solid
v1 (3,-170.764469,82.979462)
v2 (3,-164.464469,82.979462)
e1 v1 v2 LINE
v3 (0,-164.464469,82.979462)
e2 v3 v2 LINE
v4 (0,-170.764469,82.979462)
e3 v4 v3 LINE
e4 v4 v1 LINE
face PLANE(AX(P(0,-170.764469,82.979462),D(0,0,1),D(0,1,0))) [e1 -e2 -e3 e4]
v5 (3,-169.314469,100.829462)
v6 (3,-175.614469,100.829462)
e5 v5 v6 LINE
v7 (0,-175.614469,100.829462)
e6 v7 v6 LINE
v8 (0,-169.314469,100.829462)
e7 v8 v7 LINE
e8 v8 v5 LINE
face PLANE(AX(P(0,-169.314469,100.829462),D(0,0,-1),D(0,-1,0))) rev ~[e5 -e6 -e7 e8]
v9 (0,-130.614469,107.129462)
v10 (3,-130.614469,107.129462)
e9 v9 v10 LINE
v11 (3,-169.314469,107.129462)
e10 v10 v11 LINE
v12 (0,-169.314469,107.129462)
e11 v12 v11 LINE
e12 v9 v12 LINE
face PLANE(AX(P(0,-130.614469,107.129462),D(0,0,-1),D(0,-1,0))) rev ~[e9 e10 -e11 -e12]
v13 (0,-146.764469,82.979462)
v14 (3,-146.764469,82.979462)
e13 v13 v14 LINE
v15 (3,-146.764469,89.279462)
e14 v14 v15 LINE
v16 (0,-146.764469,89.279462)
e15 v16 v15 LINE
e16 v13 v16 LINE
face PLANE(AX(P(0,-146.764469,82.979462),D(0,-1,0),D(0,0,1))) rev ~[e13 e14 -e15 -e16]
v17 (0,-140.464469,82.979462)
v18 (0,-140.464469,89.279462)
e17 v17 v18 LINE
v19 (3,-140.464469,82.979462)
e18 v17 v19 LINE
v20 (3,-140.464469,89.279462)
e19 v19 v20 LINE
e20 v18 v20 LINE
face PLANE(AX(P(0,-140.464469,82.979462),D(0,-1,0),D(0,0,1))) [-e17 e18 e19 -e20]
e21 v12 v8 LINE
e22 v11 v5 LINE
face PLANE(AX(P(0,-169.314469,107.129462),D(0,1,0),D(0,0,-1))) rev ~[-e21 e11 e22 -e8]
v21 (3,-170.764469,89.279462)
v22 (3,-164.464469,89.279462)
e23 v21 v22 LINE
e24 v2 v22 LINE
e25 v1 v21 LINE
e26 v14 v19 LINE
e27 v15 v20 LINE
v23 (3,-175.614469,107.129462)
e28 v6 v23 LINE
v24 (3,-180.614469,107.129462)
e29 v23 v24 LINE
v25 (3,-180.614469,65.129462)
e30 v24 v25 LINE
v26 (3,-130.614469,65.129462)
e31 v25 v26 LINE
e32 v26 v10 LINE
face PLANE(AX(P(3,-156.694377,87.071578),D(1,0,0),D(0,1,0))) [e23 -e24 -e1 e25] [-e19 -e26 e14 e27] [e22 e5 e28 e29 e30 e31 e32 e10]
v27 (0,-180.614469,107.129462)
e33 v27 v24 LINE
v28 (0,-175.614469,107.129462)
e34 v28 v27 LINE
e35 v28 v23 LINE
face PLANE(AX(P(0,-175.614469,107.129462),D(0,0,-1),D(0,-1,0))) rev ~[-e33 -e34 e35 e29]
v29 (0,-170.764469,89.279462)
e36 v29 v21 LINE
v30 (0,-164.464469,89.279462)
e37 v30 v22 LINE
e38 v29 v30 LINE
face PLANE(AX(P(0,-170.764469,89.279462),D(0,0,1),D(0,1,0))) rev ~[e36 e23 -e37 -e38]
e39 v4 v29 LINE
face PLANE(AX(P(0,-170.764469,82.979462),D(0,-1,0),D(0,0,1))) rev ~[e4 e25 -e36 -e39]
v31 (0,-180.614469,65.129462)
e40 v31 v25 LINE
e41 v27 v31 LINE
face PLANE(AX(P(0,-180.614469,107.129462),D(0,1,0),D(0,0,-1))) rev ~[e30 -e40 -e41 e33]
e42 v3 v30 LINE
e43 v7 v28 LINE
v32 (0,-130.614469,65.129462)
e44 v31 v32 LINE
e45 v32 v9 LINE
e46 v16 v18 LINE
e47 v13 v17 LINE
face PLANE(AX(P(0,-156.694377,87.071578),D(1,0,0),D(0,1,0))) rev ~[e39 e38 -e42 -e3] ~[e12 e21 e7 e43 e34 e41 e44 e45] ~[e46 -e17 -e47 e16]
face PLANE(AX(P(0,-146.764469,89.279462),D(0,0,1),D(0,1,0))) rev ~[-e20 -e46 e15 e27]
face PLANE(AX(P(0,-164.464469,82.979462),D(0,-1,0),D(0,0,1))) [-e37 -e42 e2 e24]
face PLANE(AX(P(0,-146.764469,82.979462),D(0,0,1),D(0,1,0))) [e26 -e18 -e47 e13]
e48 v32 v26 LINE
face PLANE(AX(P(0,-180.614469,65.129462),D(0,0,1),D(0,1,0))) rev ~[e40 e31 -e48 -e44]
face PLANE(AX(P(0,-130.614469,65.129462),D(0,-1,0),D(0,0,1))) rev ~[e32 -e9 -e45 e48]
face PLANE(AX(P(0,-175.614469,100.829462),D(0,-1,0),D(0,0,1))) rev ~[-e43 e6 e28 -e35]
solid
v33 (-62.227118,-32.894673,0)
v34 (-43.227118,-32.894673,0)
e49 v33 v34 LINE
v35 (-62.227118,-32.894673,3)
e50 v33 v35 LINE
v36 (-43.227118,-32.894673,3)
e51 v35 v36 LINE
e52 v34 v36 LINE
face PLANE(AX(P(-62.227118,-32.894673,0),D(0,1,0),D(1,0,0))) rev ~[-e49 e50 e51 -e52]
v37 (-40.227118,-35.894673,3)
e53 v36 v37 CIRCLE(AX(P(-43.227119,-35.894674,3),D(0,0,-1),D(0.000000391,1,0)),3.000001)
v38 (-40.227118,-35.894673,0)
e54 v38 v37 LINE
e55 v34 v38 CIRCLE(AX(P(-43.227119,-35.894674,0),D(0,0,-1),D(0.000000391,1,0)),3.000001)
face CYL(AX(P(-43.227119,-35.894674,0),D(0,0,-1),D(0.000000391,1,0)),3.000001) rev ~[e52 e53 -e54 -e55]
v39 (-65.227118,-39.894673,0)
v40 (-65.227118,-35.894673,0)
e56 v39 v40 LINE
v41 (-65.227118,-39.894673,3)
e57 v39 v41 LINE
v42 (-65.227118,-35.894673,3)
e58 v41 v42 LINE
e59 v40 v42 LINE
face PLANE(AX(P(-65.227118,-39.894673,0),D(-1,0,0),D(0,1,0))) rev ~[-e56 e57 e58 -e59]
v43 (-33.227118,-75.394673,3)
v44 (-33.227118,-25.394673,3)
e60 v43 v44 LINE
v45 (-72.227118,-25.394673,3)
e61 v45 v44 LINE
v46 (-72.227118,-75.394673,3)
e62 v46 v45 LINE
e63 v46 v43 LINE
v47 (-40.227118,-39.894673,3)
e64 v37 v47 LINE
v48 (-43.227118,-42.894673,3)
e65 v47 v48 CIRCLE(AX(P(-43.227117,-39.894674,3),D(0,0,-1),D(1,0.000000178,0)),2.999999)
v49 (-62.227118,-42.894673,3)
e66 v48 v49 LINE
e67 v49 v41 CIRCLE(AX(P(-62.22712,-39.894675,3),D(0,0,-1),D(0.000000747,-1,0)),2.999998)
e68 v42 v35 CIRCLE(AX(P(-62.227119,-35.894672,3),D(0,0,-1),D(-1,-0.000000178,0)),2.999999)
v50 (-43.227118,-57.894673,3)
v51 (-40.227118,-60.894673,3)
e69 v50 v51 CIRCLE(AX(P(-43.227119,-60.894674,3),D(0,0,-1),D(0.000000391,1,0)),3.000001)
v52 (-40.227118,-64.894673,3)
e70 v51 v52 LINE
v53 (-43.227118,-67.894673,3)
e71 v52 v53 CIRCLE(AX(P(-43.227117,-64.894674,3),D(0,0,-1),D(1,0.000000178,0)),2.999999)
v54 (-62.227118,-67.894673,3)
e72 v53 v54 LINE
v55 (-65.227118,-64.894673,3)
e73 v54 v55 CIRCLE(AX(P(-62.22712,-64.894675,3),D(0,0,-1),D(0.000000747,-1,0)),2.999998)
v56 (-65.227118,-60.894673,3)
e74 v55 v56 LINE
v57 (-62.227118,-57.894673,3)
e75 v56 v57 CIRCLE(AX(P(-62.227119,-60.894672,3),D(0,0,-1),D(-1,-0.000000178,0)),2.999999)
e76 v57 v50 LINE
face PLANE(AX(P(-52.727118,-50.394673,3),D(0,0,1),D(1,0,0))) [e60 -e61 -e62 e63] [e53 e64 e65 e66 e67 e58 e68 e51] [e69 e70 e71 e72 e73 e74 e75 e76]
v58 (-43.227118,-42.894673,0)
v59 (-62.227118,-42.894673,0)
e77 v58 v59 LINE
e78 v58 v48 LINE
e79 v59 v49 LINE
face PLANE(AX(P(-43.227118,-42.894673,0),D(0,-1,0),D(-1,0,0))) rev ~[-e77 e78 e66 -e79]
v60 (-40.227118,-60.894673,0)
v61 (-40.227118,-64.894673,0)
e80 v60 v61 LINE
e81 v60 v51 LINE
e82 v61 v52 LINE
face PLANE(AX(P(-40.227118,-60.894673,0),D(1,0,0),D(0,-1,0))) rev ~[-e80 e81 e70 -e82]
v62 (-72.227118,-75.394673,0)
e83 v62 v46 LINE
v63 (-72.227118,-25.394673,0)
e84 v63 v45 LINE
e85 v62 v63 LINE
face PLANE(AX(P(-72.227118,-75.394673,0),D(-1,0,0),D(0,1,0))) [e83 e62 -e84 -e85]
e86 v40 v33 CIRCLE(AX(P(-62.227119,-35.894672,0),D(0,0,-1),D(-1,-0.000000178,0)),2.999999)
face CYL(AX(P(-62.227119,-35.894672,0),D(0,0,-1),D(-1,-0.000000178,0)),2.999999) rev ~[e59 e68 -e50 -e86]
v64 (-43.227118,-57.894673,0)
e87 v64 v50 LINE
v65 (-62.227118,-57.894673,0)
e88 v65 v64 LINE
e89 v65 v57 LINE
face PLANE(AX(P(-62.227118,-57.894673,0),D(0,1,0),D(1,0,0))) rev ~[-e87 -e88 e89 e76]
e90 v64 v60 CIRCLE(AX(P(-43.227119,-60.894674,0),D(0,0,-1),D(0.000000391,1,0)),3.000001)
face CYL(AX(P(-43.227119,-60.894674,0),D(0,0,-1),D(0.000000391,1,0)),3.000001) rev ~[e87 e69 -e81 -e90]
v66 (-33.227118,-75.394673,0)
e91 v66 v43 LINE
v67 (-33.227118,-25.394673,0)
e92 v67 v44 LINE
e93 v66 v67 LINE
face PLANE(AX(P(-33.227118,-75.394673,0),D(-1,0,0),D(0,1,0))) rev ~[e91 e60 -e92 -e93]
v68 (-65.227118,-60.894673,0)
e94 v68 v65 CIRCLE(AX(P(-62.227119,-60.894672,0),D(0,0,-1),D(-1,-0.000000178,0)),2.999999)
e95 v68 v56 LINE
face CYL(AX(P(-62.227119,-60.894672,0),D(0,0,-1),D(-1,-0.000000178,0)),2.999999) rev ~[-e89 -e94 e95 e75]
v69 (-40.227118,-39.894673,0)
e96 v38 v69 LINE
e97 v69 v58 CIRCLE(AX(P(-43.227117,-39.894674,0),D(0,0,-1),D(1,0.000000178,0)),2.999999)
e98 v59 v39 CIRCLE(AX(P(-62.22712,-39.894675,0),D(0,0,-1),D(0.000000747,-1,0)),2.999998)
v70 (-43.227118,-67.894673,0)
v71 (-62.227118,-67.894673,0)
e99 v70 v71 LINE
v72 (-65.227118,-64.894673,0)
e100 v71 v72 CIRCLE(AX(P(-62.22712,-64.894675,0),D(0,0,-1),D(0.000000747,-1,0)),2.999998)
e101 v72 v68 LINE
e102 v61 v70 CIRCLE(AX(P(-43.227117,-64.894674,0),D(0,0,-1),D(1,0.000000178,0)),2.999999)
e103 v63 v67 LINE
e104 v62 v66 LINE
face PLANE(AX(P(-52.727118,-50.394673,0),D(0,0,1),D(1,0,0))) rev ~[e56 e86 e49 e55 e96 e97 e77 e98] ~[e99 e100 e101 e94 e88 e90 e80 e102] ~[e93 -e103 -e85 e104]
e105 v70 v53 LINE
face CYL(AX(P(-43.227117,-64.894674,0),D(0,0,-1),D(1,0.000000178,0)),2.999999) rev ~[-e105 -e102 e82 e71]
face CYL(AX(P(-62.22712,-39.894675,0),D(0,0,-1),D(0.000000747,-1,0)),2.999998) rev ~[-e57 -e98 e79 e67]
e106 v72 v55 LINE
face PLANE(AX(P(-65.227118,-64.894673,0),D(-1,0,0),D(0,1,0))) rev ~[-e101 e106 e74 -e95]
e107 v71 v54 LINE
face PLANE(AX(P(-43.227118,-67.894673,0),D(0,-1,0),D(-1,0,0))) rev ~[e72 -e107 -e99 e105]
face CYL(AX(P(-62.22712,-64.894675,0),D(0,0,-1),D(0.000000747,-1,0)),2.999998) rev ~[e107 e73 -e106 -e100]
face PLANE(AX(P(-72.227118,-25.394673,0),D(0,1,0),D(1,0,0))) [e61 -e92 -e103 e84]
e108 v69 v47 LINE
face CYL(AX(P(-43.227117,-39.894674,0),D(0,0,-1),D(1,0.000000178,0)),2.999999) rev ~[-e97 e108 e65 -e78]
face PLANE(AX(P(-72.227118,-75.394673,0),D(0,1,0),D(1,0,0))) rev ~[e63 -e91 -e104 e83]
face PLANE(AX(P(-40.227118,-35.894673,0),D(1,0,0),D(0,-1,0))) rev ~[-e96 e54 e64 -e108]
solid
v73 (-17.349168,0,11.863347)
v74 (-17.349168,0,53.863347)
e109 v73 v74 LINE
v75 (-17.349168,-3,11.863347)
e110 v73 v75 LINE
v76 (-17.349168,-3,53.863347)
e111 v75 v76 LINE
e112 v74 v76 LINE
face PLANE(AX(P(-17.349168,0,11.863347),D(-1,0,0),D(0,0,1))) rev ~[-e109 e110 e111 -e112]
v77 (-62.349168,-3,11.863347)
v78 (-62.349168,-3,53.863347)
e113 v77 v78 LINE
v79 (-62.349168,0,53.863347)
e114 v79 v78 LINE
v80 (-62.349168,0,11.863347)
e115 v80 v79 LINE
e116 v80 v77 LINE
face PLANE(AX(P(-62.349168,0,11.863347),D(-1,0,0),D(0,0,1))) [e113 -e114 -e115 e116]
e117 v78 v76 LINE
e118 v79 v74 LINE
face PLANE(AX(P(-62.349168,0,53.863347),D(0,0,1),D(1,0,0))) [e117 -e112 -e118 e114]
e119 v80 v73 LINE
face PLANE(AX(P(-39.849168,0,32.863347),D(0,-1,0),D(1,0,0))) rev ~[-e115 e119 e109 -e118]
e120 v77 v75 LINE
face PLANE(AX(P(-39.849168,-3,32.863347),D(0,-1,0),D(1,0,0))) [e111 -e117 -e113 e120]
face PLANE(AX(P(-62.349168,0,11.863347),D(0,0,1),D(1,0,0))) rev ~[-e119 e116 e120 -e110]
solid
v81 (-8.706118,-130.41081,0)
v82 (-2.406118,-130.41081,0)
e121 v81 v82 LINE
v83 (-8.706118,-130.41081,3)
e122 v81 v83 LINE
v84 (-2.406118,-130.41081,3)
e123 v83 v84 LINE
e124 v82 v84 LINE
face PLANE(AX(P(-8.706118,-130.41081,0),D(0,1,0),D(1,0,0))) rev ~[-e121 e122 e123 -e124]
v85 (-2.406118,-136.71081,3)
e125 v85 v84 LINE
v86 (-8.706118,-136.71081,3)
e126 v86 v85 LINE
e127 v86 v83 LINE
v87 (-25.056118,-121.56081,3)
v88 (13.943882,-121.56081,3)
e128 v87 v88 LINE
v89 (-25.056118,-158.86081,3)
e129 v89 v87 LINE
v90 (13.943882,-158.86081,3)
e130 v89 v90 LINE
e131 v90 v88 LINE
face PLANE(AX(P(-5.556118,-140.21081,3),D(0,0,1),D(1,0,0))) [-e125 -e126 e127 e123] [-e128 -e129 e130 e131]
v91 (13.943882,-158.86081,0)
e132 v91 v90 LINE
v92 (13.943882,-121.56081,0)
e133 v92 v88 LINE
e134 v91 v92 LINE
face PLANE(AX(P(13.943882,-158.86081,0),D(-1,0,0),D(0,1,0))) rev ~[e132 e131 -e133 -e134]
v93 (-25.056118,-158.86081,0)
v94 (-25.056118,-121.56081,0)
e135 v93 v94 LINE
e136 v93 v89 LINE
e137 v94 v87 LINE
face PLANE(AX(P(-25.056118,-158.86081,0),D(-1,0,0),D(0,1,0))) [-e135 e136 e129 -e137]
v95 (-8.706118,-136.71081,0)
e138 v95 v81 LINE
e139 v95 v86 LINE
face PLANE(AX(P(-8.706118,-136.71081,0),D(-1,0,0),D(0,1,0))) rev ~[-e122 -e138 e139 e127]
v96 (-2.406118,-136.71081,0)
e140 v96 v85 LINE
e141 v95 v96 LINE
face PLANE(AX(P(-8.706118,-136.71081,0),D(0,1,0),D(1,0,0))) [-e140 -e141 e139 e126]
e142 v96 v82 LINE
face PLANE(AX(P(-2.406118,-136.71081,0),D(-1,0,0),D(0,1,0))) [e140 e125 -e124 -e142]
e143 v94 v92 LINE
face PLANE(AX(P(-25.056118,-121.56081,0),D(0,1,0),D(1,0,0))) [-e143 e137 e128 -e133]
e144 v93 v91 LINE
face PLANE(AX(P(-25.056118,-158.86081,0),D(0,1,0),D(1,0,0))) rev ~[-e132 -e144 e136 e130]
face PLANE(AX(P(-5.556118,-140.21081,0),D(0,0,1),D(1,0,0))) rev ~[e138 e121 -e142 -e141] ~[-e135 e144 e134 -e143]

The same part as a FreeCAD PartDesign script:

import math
import FreeCAD as App
import Part
import Sketcher
Q = App.Units.Quantity


def add_polygon(sketch, points):
    """Adds a closed chain of lines whose ends are joined by coincident constraints."""
    first, n = sketch.GeometryCount, len(points)
    for a, b in zip(points, points[1:] + points[:1]):
        sketch.addGeometry(Part.LineSegment(App.Vector(*a, 0), App.Vector(*b, 0)), False)
    for i in range(n):
        sketch.addConstraint(Sketcher.Constraint("Coincident", first + i, 2, first + (i + 1) % n, 1))

doc = App.newDocument("Part")
body = doc.addObject("PartDesign::Body", "Body")

# Sketch on XY plane
sketch1 = body.newObject("Sketcher::SketchObject", "Sketch")
sketch1.AttachmentSupport = (doc.getObject("XY_Plane"), [""])
sketch1.MapMode = "FlatFace"
add_polygon(sketch1, [(-25, -122), (-25, -159), (14, -159), (14, -122)])  # lines 0-3
add_polygon(sketch1, [(-2, -137), (-9, -137), (-9, -130), (-2, -130)])  # lines 4-7
sketch1.addConstraint([
    Sketcher.Constraint("Vertical", 0),
    Sketcher.Constraint("Horizontal", 1),
    Sketcher.Constraint("Vertical", 2),
    Sketcher.Constraint("Horizontal", 3),
    Sketcher.Constraint("Horizontal", 4),
    Sketcher.Constraint("Vertical", 5),
    Sketcher.Constraint("Horizontal", 6),
    Sketcher.Constraint("Vertical", 7),
    Sketcher.Constraint("Equal", 6, 5),
    Sketcher.Constraint("DistanceX", 1, 1, 1, 2, Q("39 mm")),
    Sketcher.Constraint("DistanceX", 4, 2, 4, 1, Q("6.3 mm")),
    Sketcher.Constraint("DistanceY", 0, 2, 0, 1, Q("37.3 mm")),
    Sketcher.Constraint("DistanceX", 3, 2, 4, 2, Q("16.35 mm")),
    Sketcher.Constraint("DistanceY", 4, 2, 3, 2, Q("15.15 mm")),
    Sketcher.Constraint("DistanceX", 0, 2, -1, 1, Q("25.056118 mm")),
    Sketcher.Constraint("DistanceY", 0, 2, -1, 1, Q("158.86081 mm")),
])
pad1 = body.newObject("PartDesign::Pad", "Pad")
pad1.Profile = sketch1
pad1.Length = 3
body2 = doc.addObject("PartDesign::Body", "Body001")

# Sketch on YZ plane
sketch2 = body2.newObject("Sketcher::SketchObject", "Sketch001")
sketch2.AttachmentSupport = (doc.getObject("YZ_Plane001"), [""])
sketch2.MapMode = "FlatFace"
add_polygon(sketch2, [(-181, 65), (-131, 65), (-131, 107), (-169, 107), (-169, 101), (-176, 101), (-176, 107), (-181, 107)])  # lines 0-7
add_polygon(sketch2, [(-164, 83), (-171, 83), (-171, 89), (-164, 89)])  # lines 8-11
add_polygon(sketch2, [(-140, 83), (-147, 83), (-147, 89), (-140, 89)])  # lines 12-15
sketch2.addConstraint([
    Sketcher.Constraint("Horizontal", 0),
    Sketcher.Constraint("Vertical", 1),
    Sketcher.Constraint("Horizontal", 2),
    Sketcher.Constraint("Vertical", 3),
    Sketcher.Constraint("Horizontal", 4),
    Sketcher.Constraint("Vertical", 5),
    Sketcher.Constraint("Horizontal", 6),
    Sketcher.Constraint("Vertical", 7),
    Sketcher.Constraint("Horizontal", 8),
    Sketcher.Constraint("Vertical", 9),
    Sketcher.Constraint("Horizontal", 10),
    Sketcher.Constraint("Vertical", 11),
    Sketcher.Constraint("Horizontal", 12),
    Sketcher.Constraint("Vertical", 13),
    Sketcher.Constraint("Horizontal", 14),
    Sketcher.Constraint("Vertical", 15),
    Sketcher.Constraint("Horizontal", 2, 2, 5, 2),
    Sketcher.Constraint("Horizontal", 11, 2, 12, 2),
    Sketcher.Constraint("Horizontal", 10, 2, 13, 2),
    Sketcher.Constraint("Equal", 4, 8),
    Sketcher.Constraint("Equal", 10, 12),
    Sketcher.Constraint("Equal", 14, 3),
    Sketcher.Constraint("Equal", 5, 9),
    Sketcher.Constraint("DistanceX", 0, 1, 0, 2, Q("50 mm")),
    Sketcher.Constraint("DistanceX", 6, 2, 6, 1, Q("5 mm")),
    Sketcher.Constraint("DistanceY", 1, 1, 1, 2, Q("42 mm")),
    Sketcher.Constraint("DistanceX", 2, 2, 2, 1, Q("38.7 mm")),
    Sketcher.Constraint("DistanceX", 8, 2, 12, 2, Q("24 mm")),
    Sketcher.Constraint("DistanceX", 8, 2, 3, 2, Q("1.45 mm")),
    Sketcher.Constraint("DistanceY", 8, 2, 3, 2, Q("17.85 mm")),
    Sketcher.Constraint("DistanceX", 0, 2, -1, 1, Q("130.614469 mm")),
    Sketcher.Constraint("DistanceY", -1, 1, 8, 2, Q("82.979462 mm")),
])
pad2 = body2.newObject("PartDesign::Pad", "Pad001")
pad2.Profile = sketch2
pad2.Length = 3
body3 = doc.addObject("PartDesign::Body", "Body002")

# Sketch on XY plane
sketch3 = body3.newObject("Sketcher::SketchObject", "Sketch002")
sketch3.AttachmentSupport = (doc.getObject("XY_Plane002"), [""])
sketch3.MapMode = "FlatFace"
add_polygon(sketch3, [(-72.2, -25.4), (-72.2, -75.4), (-33.2, -75.4), (-33.2, -25.4)])  # lines 0-3
sketch3.addGeometry(Part.LineSegment(App.Vector(-65.2, -64.9, 0), App.Vector(-65.2, -60.9, 0)), False)  # 4
sketch3.addGeometry(Part.ArcOfCircle(Part.Circle(App.Vector(-62.2, -60.9, 0), App.Vector(0, 0, 1), 3), math.radians(90), math.radians(180)), False)  # 5
sketch3.addGeometry(Part.LineSegment(App.Vector(-62.2, -57.9, 0), App.Vector(-43.2, -57.9, 0)), False)  # 6
sketch3.addGeometry(Part.ArcOfCircle(Part.Circle(App.Vector(-43.2, -60.9, 0), App.Vector(0, 0, 1), 3), math.radians(0), math.radians(90)), False)  # 7
sketch3.addGeometry(Part.LineSegment(App.Vector(-40.2, -60.9, 0), App.Vector(-40.2, -64.9, 0)), False)  # 8
sketch3.addGeometry(Part.ArcOfCircle(Part.Circle(App.Vector(-43.2, -64.9, 0), App.Vector(0, 0, 1), 3), math.radians(-90), math.radians(0)), False)  # 9
sketch3.addGeometry(Part.LineSegment(App.Vector(-43.2, -67.9, 0), App.Vector(-62.2, -67.9, 0)), False)  # 10
sketch3.addGeometry(Part.ArcOfCircle(Part.Circle(App.Vector(-62.2, -64.9, 0), App.Vector(0, 0, 1), 3), math.radians(180), math.radians(270)), False)  # 11
sketch3.addGeometry(Part.ArcOfCircle(Part.Circle(App.Vector(-43.2, -39.9, 0), App.Vector(0, 0, 1), 3), math.radians(-90), math.radians(0)), False)  # 12
sketch3.addGeometry(Part.LineSegment(App.Vector(-43.2, -42.9, 0), App.Vector(-62.2, -42.9, 0)), False)  # 13
sketch3.addGeometry(Part.ArcOfCircle(Part.Circle(App.Vector(-62.2, -39.9, 0), App.Vector(0, 0, 1), 3), math.radians(180), math.radians(270)), False)  # 14
sketch3.addGeometry(Part.LineSegment(App.Vector(-65.2, -39.9, 0), App.Vector(-65.2, -35.9, 0)), False)  # 15
sketch3.addGeometry(Part.ArcOfCircle(Part.Circle(App.Vector(-62.2, -35.9, 0), App.Vector(0, 0, 1), 3), math.radians(90), math.radians(180)), False)  # 16
sketch3.addGeometry(Part.LineSegment(App.Vector(-62.2, -32.9, 0), App.Vector(-43.2, -32.9, 0)), False)  # 17
sketch3.addGeometry(Part.ArcOfCircle(Part.Circle(App.Vector(-43.2, -35.9, 0), App.Vector(0, 0, 1), 3), math.radians(0), math.radians(90)), False)  # 18
sketch3.addGeometry(Part.LineSegment(App.Vector(-40.2, -35.9, 0), App.Vector(-40.2, -39.9, 0)), False)  # 19
sketch3.addConstraint([
    Sketcher.Constraint("Tangent", 4, 2, 5, 2),
    Sketcher.Constraint("Tangent", 5, 1, 6, 1),
    Sketcher.Constraint("Tangent", 6, 2, 7, 2),
    Sketcher.Constraint("Tangent", 7, 1, 8, 1),
    Sketcher.Constraint("Tangent", 8, 2, 9, 2),
    Sketcher.Constraint("Tangent", 9, 1, 10, 1),
    Sketcher.Constraint("Tangent", 10, 2, 11, 2),
    Sketcher.Constraint("Tangent", 11, 1, 4, 1),
    Sketcher.Constraint("Tangent", 12, 1, 13, 1),
    Sketcher.Constraint("Tangent", 13, 2, 14, 2),
    Sketcher.Constraint("Tangent", 14, 1, 15, 1),
    Sketcher.Constraint("Tangent", 15, 2, 16, 2),
    Sketcher.Constraint("Tangent", 16, 1, 17, 1),
    Sketcher.Constraint("Tangent", 17, 2, 18, 2),
    Sketcher.Constraint("Tangent", 18, 1, 19, 1),
    Sketcher.Constraint("Tangent", 19, 2, 12, 2),
    Sketcher.Constraint("Vertical", 0),
    Sketcher.Constraint("Horizontal", 1),
    Sketcher.Constraint("Vertical", 2),
    Sketcher.Constraint("Horizontal", 3),
    Sketcher.Constraint("Vertical", 4),
    Sketcher.Constraint("Horizontal", 6),
    Sketcher.Constraint("Vertical", 8),
    Sketcher.Constraint("Horizontal", 10),
    Sketcher.Constraint("Horizontal", 13),
    Sketcher.Constraint("Vertical", 15),
    Sketcher.Constraint("Horizontal", 17),
    Sketcher.Constraint("Vertical", 19),
    Sketcher.Constraint("Equal", 5, 7),
    Sketcher.Constraint("Equal", 7, 9),
    Sketcher.Constraint("Equal", 9, 11),
    Sketcher.Constraint("Equal", 11, 12),
    Sketcher.Constraint("Equal", 12, 14),
    Sketcher.Constraint("Equal", 14, 16),
    Sketcher.Constraint("Equal", 16, 18),
    Sketcher.Constraint("Vertical", 9, 3, 12, 3),
    Sketcher.Constraint("Vertical", 11, 3, 14, 3),
    Sketcher.Constraint("Equal", 8, 15),
    Sketcher.Constraint("Radius", 5, Q("2.999999 mm")),
    Sketcher.Constraint("DistanceX", 1, 1, 1, 2, Q("39 mm")),
    Sketcher.Constraint("DistanceX", 6, 1, 6, 2, Q("19 mm")),
    Sketcher.Constraint("DistanceY", 0, 2, 0, 1, Q("50 mm")),
    Sketcher.Constraint("DistanceY", 4, 1, 4, 2, Q("4 mm")),
    Sketcher.Constraint("DistanceY", 7, 3, 12, 3, Q("21.000001 mm")),
    Sketcher.Constraint("DistanceX", 0, 2, 5, 3, Q("9.999999 mm")),
    Sketcher.Constraint("DistanceY", 0, 2, 5, 3, Q("14.500001 mm")),
    Sketcher.Constraint("DistanceX", 5, 3, -1, 1, Q("62.227119 mm")),
    Sketcher.Constraint("DistanceY", 5, 3, -1, 1, Q("60.894672 mm")),
])
pad3 = body3.newObject("PartDesign::Pad", "Pad002")
pad3.Profile = sketch3
pad3.Length = 3
body4 = doc.addObject("PartDesign::Body", "Body003")

# Sketch on XZ plane
sketch4 = body4.newObject("Sketcher::SketchObject", "Sketch003")
sketch4.AttachmentSupport = (doc.getObject("XZ_Plane003"), [""])
sketch4.MapMode = "FlatFace"
add_polygon(sketch4, [(-62, 54), (-62, 12), (-17, 12), (-17, 54)])  # lines 0-3
sketch4.addConstraint([
    Sketcher.Constraint("Vertical", 0),
    Sketcher.Constraint("Horizontal", 1),
    Sketcher.Constraint("Vertical", 2),
    Sketcher.Constraint("Horizontal", 3),
    Sketcher.Constraint("DistanceX", 1, 1, 1, 2, Q("45 mm")),
    Sketcher.Constraint("DistanceY", 0, 2, 0, 1, Q("42 mm")),
    Sketcher.Constraint("DistanceX", 0, 2, -1, 1, Q("62.349168 mm")),
    Sketcher.Constraint("DistanceY", -1, 1, 0, 2, Q("11.863347 mm")),
])
pad4 = body4.newObject("PartDesign::Pad", "Pad003")
pad4.Profile = sketch4
pad4.Length = 3

doc.recompute()
